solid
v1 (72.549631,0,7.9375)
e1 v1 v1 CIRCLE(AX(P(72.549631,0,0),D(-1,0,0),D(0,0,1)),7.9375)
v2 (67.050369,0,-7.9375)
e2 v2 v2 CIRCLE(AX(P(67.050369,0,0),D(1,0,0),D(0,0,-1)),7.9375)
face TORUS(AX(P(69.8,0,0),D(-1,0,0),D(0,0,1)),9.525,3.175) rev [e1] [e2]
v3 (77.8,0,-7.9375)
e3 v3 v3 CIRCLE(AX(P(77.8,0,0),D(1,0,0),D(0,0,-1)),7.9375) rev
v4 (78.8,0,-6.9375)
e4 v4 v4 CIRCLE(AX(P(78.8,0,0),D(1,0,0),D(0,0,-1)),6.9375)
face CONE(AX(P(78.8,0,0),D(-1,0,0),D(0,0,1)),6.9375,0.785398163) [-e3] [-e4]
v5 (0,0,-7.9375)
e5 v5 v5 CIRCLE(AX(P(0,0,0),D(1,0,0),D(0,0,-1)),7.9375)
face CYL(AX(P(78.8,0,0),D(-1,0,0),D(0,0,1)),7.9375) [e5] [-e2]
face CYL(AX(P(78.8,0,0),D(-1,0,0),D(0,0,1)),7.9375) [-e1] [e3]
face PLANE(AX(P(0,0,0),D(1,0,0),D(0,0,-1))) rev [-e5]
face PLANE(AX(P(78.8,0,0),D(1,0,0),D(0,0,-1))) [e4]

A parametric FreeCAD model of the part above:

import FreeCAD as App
import Part
import Sketcher
Q = App.Units.Quantity


def edges_at(feature, points):
    """Names of the edges that pass closest to the given points."""
    edges = feature.Shape.Edges
    near = lambda p: min(range(len(edges)), key=lambda i: edges[i].distToShape(Part.Vertex(*p))[0])
    return sorted({f"Edge{near(p) + 1}" for p in points})

doc = App.newDocument("Part")
params = doc.addObject("Spreadsheet::Sheet", "Params")
for row, (alias, value) in enumerate([
    ("pad1_length", "78.8 mm"),
    ("sketch2_diameter", "6.35 mm"),
    ("groove_angle", "360 deg"),
    ("chamfer_size", "1 mm"),
], start=1):
    params.set(f"A{row}", alias)
    params.set(f"B{row}", "=" + value)
    params.setAlias(f"B{row}", alias)

body = doc.addObject("PartDesign::Body", "Body")

sketch1 = body.newObject("Sketcher::SketchObject", "Sketch")
sketch1.AttachmentSupport = (doc.getObject("YZ_Plane"), [""])
sketch1.MapMode = "FlatFace"
sketch1.addGeometry(Part.Circle(App.Vector(0, 0, 0), App.Vector(0, 0, 1), 8), False)
sketch1.addConstraint([
    Sketcher.Constraint("Coincident", 0, 3, -1, 1),
    Sketcher.Constraint("Diameter", 0, Q("15.875 mm")),
])
pad1 = body.newObject("PartDesign::Pad", "Pad")
pad1.Profile = sketch1
pad1.setExpression("Length", "Params.pad1_length")

sketch2 = body.newObject("Sketcher::SketchObject", "Sketch001")
sketch2.AttachmentSupport = (doc.getObject("XZ_Plane"), [""])
sketch2.MapMode = "FlatFace"
sketch2.addGeometry(Part.Circle(App.Vector(69.8, -9.5, 0), App.Vector(0, 0, 1), 3.2), False)
sketch2.addConstraint([
    Sketcher.Constraint("Diameter", 0, Q("6.35 mm")),
    Sketcher.Constraint("DistanceX", -1, 1, 0, 3, Q("69.8 mm")),
    Sketcher.Constraint("DistanceY", 0, 3, -1, 1, Q("9.525 mm")),
])
sketch2.setExpression("Constraints[0]", "Params.sketch2_diameter")
groove = body.newObject("PartDesign::Groove", "Groove")
groove.Profile = sketch2
groove.ReferenceAxis = (sketch2, ["H_Axis"])
groove.setExpression("Angle", "Params.groove_angle")
doc.recompute()

chamfer = body.newObject("PartDesign::Chamfer", "Chamfer")
chamfer.Base = (groove, edges_at(groove, [(78.8, 0, 7.938)]))
chamfer.setExpression("Size", "Params.chamfer_size")

doc.recompute()
